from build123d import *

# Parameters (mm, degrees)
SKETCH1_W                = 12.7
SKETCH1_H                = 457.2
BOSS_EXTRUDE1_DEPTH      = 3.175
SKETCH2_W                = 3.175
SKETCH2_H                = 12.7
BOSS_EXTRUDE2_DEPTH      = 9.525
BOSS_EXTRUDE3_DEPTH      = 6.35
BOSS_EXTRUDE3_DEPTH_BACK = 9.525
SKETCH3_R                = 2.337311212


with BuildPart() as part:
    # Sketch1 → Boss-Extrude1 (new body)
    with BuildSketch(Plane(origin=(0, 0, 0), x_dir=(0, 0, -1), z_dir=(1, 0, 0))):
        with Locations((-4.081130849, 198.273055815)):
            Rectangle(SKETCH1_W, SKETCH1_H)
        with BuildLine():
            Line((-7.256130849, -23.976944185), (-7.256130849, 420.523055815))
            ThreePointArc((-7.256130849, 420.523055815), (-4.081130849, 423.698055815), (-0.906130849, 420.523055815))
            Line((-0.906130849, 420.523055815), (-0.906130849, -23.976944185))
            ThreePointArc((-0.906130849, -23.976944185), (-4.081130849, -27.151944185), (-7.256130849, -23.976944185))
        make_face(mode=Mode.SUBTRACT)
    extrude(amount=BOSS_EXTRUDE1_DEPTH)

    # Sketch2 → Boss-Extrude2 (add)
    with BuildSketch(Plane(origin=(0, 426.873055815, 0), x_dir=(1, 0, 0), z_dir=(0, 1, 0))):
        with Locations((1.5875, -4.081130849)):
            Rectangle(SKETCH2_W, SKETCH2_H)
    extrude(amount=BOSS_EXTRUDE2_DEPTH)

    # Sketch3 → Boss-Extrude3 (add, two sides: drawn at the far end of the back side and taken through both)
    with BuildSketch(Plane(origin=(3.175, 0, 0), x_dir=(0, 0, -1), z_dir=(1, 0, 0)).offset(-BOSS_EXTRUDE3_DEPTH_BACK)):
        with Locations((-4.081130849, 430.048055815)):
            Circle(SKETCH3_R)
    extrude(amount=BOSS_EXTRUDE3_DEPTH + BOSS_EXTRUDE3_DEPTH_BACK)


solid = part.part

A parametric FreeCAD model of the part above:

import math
import FreeCAD as App
import Part
import Sketcher
from FreeCAD import Vector
Q = App.Units.Quantity

doc = App.newDocument("Part")
params = doc.addObject("Spreadsheet::Sheet", "Params")
for row, (alias, value) in enumerate([
    ("sketch1_width", "18 in"),
    ("sketch1_width2", "17.5 in"),
    ("sketch1_height", "0.5 in"),
    ("sketch1_radius", "0.125 in"),
    ("pad1_length", "0.125 in"),
    ("sketch2_height", "0.5 in"),
    ("sketch2_width", "0.125 in"),
    ("pad2_length", "0.375 in"),
    ("pad3_length", "0.25 in"),
    ("pad3_length2", "0.375 in"),
], start=1):
    params.set(f"A{row}", alias)
    params.set(f"B{row}", "=" + value)
    params.setAlias(f"B{row}", alias)

body = doc.addObject("PartDesign::Body", "Body")

sketch1 = body.newObject("Sketcher::SketchObject", "Sketch")
sketch1.AttachmentSupport = (doc.getObject("YZ_Plane"), [""])
sketch1.MapMode = "FlatFace"
sketch1.addGeometry(Part.LineSegment(Vector(426.9, 10.4, 0), Vector(-30.3, 10.4, 0)), False)
sketch1.addGeometry(Part.LineSegment(Vector(-30.3, 10.4, 0), Vector(-30.3, -2.3, 0)), False)
sketch1.addGeometry(Part.LineSegment(Vector(-30.3, -2.3, 0), Vector(426.9, -2.3, 0)), False)
sketch1.addGeometry(Part.LineSegment(Vector(426.9, -2.3, 0), Vector(426.9, 10.4, 0)), False)
sketch1.addGeometry(Part.ArcOfCircle(Part.Circle(Vector(-24, 4.1, 0), Vector(0, 0, 1), 3.2), math.radians(90), math.radians(270)), False)
sketch1.addGeometry(Part.LineSegment(Vector(-24, 7.3, 0), Vector(420.5, 7.3, 0)), False)
sketch1.addGeometry(Part.ArcOfCircle(Part.Circle(Vector(420.5, 4.1, 0), Vector(0, 0, 1), 3.2), math.radians(-90), math.radians(90)), False)
sketch1.addGeometry(Part.LineSegment(Vector(420.5, 0.9, 0), Vector(-24, 0.9, 0)), False)
sketch1.addConstraint(Sketcher.Constraint("Coincident", 0, 2, 1, 1))
sketch1.addConstraint(Sketcher.Constraint("Coincident", 1, 2, 2, 1))
sketch1.addConstraint(Sketcher.Constraint("Coincident", 2, 2, 3, 1))
sketch1.addConstraint(Sketcher.Constraint("Coincident", 3, 2, 0, 1))
sketch1.addConstraint(Sketcher.Constraint("Tangent", 4, 1, 5, 1))
sketch1.addConstraint(Sketcher.Constraint("Tangent", 5, 2, 6, 2))
sketch1.addConstraint(Sketcher.Constraint("Tangent", 6, 1, 7, 1))
sketch1.addConstraint(Sketcher.Constraint("Tangent", 7, 2, 4, 2))
sketch1.addConstraint(Sketcher.Constraint("Horizontal", 0))
sketch1.addConstraint(Sketcher.Constraint("Vertical", 1))
sketch1.addConstraint(Sketcher.Constraint("Horizontal", 2))
sketch1.addConstraint(Sketcher.Constraint("Vertical", 3))
sketch1.addConstraint(Sketcher.Constraint("Horizontal", 5))
sketch1.addConstraint(Sketcher.Constraint("Horizontal", 7))
sketch1.addConstraint(Sketcher.Constraint("DistanceX", 0, 2, 0, 1, Q("18 in")))
sketch1.addConstraint(Sketcher.Constraint("DistanceX", 5, 1, 5, 2, Q("17.5 in")))
sketch1.addConstraint(Sketcher.Constraint("DistanceY", 1, 2, 1, 1, Q("0.5 in")))
sketch1.addConstraint(Sketcher.Constraint("Radius", 4, Q("0.125 in")))
sketch1.addConstraint(Sketcher.Constraint("DistanceX", 0, 2, 4, 3, Q("0.25 in")))
sketch1.addConstraint(Sketcher.Constraint("DistanceY", 4, 3, 0, 2, Q("0.25 in")))
sketch1.addConstraint(Sketcher.Constraint("DistanceY", -1, 1, 4, 3, 4.081131))
sketch1.addConstraint(Sketcher.Constraint("DistanceX", 4, 3, -1, 1, 23.976944))
sketch1.setExpression("Constraints[14]", "Params.sketch1_width")
sketch1.setExpression("Constraints[15]", "Params.sketch1_width2")
sketch1.setExpression("Constraints[16]", "Params.sketch1_height")
sketch1.setExpression("Constraints[17]", "Params.sketch1_radius")
pad1 = body.newObject("PartDesign::Pad", "Pad")
pad1.Profile = sketch1
pad1.setExpression("Length", "Params.pad1_length")

sketch2 = body.newObject("Sketcher::SketchObject", "Sketch001")
sketch2.AttachmentSupport = (doc.getObject("XZ_Plane"), [""])
sketch2.MapMode = "FlatFace"
sketch2.AttachmentOffset = App.Placement(Vector(0, 0, -426.873056), App.Rotation())
sketch2.addGeometry(Part.LineSegment(Vector(0, -2.3, 0), Vector(0, 10.4, 0)), False)
sketch2.addGeometry(Part.LineSegment(Vector(0, 10.4, 0), Vector(3.2, 10.4, 0)), False)
sketch2.addGeometry(Part.LineSegment(Vector(3.2, 10.4, 0), Vector(3.2, -2.3, 0)), False)
sketch2.addGeometry(Part.LineSegment(Vector(3.2, -2.3, 0), Vector(0, -2.3, 0)), False)
sketch2.addConstraint(Sketcher.Constraint("Coincident", 0, 2, 1, 1))
sketch2.addConstraint(Sketcher.Constraint("Coincident", 1, 2, 2, 1))
sketch2.addConstraint(Sketcher.Constraint("Coincident", 2, 2, 3, 1))
sketch2.addConstraint(Sketcher.Constraint("Coincident", 3, 2, 0, 1))
sketch2.addConstraint(Sketcher.Constraint("Vertical", 0))
sketch2.addConstraint(Sketcher.Constraint("Horizontal", 1))
sketch2.addConstraint(Sketcher.Constraint("Vertical", 2))
sketch2.addConstraint(Sketcher.Constraint("Horizontal", 3))
sketch2.addConstraint(Sketcher.Constraint("PointOnObject", 0, 2, -2))
sketch2.addConstraint(Sketcher.Constraint("DistanceY", 0, 1, 0, 2, Q("0.5 in")))
sketch2.addConstraint(Sketcher.Constraint("DistanceX", 1, 1, 1, 2, Q("0.125 in")))
sketch2.addConstraint(Sketcher.Constraint("DistanceY", -1, 1, 0, 2, 10.431131))
sketch2.setExpression("Constraints[9]", "Params.sketch2_height")
sketch2.setExpression("Constraints[10]", "Params.sketch2_width")
pad2 = body.newObject("PartDesign::Pad", "Pad001")
pad2.Profile = sketch2
pad2.setExpression("Length", "Params.pad2_length")
pad2.Reversed = True

sketch3 = body.newObject("Sketcher::SketchObject", "Sketch002")
sketch3.AttachmentSupport = (doc.getObject("YZ_Plane"), [""])
sketch3.MapMode = "FlatFace"
sketch3.AttachmentOffset = App.Placement(Vector(0, 0, 0.125 * 25.4), App.Rotation())
sketch3.addGeometry(Part.Circle(Vector(430, 4.1, 0), Vector(0, 0, 1), 2.3), False)
sketch3.addConstraint(Sketcher.Constraint("Diameter", 0, 4.674622))
sketch3.addConstraint(Sketcher.Constraint("DistanceY", -1, 1, 0, 3, 4.081131))
sketch3.addConstraint(Sketcher.Constraint("DistanceX", -1, 1, 0, 3, 430.048056))
pad3 = body.newObject("PartDesign::Pad", "Pad002")
pad3.Profile = sketch3
pad3.Type = "TwoLengths"
pad3.setExpression("Length", "Params.pad3_length")
pad3.setExpression("Length2", "Params.pad3_length2")

doc.recompute()
